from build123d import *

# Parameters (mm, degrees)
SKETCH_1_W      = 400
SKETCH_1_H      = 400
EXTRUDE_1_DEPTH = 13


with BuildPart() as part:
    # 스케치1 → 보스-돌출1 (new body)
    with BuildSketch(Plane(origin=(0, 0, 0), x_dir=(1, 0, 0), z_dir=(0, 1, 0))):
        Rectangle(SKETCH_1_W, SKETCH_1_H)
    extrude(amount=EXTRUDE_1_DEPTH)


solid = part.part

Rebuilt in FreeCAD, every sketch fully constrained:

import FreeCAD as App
import Part
import Sketcher
Q = App.Units.Quantity


def add_polygon(sketch, points):
    """Adds a closed chain of lines whose ends are joined by coincident constraints."""
    first, n = sketch.GeometryCount, len(points)
    for a, b in zip(points, points[1:] + points[:1]):
        sketch.addGeometry(Part.LineSegment(App.Vector(*a, 0), App.Vector(*b, 0)), False)
    for i in range(n):
        sketch.addConstraint(Sketcher.Constraint("Coincident", first + i, 2, first + (i + 1) % n, 1))

doc = App.newDocument("Part")
body = doc.addObject("PartDesign::Body", "Body")

# Sketch on XZ plane
sketch1 = body.newObject("Sketcher::SketchObject", "Sketch")
sketch1.AttachmentSupport = (doc.getObject("XZ_Plane"), [""])
sketch1.MapMode = "FlatFace"
add_polygon(sketch1, [(-200, -200), (-200, 200), (200, 200), (200, -200)])  # lines 0-3
sketch1.addConstraint(Sketcher.Constraint("Vertical", 0))
sketch1.addConstraint(Sketcher.Constraint("Horizontal", 1))
sketch1.addConstraint(Sketcher.Constraint("Vertical", 2))
sketch1.addConstraint(Sketcher.Constraint("Horizontal", 3))
sketch1.addConstraint(Sketcher.Constraint("Symmetric", 0, 2, 2, 2, -1, 1))
sketch1.addConstraint(Sketcher.Constraint("Equal", 3, 0))
sketch1.addConstraint(Sketcher.Constraint("DistanceX", 1, 1, 1, 2, Q("400 mm")))
pad1 = body.newObject("PartDesign::Pad", "Pad")
pad1.Profile = sketch1
pad1.Length = 13
pad1.Reversed = True

doc.recompute()
